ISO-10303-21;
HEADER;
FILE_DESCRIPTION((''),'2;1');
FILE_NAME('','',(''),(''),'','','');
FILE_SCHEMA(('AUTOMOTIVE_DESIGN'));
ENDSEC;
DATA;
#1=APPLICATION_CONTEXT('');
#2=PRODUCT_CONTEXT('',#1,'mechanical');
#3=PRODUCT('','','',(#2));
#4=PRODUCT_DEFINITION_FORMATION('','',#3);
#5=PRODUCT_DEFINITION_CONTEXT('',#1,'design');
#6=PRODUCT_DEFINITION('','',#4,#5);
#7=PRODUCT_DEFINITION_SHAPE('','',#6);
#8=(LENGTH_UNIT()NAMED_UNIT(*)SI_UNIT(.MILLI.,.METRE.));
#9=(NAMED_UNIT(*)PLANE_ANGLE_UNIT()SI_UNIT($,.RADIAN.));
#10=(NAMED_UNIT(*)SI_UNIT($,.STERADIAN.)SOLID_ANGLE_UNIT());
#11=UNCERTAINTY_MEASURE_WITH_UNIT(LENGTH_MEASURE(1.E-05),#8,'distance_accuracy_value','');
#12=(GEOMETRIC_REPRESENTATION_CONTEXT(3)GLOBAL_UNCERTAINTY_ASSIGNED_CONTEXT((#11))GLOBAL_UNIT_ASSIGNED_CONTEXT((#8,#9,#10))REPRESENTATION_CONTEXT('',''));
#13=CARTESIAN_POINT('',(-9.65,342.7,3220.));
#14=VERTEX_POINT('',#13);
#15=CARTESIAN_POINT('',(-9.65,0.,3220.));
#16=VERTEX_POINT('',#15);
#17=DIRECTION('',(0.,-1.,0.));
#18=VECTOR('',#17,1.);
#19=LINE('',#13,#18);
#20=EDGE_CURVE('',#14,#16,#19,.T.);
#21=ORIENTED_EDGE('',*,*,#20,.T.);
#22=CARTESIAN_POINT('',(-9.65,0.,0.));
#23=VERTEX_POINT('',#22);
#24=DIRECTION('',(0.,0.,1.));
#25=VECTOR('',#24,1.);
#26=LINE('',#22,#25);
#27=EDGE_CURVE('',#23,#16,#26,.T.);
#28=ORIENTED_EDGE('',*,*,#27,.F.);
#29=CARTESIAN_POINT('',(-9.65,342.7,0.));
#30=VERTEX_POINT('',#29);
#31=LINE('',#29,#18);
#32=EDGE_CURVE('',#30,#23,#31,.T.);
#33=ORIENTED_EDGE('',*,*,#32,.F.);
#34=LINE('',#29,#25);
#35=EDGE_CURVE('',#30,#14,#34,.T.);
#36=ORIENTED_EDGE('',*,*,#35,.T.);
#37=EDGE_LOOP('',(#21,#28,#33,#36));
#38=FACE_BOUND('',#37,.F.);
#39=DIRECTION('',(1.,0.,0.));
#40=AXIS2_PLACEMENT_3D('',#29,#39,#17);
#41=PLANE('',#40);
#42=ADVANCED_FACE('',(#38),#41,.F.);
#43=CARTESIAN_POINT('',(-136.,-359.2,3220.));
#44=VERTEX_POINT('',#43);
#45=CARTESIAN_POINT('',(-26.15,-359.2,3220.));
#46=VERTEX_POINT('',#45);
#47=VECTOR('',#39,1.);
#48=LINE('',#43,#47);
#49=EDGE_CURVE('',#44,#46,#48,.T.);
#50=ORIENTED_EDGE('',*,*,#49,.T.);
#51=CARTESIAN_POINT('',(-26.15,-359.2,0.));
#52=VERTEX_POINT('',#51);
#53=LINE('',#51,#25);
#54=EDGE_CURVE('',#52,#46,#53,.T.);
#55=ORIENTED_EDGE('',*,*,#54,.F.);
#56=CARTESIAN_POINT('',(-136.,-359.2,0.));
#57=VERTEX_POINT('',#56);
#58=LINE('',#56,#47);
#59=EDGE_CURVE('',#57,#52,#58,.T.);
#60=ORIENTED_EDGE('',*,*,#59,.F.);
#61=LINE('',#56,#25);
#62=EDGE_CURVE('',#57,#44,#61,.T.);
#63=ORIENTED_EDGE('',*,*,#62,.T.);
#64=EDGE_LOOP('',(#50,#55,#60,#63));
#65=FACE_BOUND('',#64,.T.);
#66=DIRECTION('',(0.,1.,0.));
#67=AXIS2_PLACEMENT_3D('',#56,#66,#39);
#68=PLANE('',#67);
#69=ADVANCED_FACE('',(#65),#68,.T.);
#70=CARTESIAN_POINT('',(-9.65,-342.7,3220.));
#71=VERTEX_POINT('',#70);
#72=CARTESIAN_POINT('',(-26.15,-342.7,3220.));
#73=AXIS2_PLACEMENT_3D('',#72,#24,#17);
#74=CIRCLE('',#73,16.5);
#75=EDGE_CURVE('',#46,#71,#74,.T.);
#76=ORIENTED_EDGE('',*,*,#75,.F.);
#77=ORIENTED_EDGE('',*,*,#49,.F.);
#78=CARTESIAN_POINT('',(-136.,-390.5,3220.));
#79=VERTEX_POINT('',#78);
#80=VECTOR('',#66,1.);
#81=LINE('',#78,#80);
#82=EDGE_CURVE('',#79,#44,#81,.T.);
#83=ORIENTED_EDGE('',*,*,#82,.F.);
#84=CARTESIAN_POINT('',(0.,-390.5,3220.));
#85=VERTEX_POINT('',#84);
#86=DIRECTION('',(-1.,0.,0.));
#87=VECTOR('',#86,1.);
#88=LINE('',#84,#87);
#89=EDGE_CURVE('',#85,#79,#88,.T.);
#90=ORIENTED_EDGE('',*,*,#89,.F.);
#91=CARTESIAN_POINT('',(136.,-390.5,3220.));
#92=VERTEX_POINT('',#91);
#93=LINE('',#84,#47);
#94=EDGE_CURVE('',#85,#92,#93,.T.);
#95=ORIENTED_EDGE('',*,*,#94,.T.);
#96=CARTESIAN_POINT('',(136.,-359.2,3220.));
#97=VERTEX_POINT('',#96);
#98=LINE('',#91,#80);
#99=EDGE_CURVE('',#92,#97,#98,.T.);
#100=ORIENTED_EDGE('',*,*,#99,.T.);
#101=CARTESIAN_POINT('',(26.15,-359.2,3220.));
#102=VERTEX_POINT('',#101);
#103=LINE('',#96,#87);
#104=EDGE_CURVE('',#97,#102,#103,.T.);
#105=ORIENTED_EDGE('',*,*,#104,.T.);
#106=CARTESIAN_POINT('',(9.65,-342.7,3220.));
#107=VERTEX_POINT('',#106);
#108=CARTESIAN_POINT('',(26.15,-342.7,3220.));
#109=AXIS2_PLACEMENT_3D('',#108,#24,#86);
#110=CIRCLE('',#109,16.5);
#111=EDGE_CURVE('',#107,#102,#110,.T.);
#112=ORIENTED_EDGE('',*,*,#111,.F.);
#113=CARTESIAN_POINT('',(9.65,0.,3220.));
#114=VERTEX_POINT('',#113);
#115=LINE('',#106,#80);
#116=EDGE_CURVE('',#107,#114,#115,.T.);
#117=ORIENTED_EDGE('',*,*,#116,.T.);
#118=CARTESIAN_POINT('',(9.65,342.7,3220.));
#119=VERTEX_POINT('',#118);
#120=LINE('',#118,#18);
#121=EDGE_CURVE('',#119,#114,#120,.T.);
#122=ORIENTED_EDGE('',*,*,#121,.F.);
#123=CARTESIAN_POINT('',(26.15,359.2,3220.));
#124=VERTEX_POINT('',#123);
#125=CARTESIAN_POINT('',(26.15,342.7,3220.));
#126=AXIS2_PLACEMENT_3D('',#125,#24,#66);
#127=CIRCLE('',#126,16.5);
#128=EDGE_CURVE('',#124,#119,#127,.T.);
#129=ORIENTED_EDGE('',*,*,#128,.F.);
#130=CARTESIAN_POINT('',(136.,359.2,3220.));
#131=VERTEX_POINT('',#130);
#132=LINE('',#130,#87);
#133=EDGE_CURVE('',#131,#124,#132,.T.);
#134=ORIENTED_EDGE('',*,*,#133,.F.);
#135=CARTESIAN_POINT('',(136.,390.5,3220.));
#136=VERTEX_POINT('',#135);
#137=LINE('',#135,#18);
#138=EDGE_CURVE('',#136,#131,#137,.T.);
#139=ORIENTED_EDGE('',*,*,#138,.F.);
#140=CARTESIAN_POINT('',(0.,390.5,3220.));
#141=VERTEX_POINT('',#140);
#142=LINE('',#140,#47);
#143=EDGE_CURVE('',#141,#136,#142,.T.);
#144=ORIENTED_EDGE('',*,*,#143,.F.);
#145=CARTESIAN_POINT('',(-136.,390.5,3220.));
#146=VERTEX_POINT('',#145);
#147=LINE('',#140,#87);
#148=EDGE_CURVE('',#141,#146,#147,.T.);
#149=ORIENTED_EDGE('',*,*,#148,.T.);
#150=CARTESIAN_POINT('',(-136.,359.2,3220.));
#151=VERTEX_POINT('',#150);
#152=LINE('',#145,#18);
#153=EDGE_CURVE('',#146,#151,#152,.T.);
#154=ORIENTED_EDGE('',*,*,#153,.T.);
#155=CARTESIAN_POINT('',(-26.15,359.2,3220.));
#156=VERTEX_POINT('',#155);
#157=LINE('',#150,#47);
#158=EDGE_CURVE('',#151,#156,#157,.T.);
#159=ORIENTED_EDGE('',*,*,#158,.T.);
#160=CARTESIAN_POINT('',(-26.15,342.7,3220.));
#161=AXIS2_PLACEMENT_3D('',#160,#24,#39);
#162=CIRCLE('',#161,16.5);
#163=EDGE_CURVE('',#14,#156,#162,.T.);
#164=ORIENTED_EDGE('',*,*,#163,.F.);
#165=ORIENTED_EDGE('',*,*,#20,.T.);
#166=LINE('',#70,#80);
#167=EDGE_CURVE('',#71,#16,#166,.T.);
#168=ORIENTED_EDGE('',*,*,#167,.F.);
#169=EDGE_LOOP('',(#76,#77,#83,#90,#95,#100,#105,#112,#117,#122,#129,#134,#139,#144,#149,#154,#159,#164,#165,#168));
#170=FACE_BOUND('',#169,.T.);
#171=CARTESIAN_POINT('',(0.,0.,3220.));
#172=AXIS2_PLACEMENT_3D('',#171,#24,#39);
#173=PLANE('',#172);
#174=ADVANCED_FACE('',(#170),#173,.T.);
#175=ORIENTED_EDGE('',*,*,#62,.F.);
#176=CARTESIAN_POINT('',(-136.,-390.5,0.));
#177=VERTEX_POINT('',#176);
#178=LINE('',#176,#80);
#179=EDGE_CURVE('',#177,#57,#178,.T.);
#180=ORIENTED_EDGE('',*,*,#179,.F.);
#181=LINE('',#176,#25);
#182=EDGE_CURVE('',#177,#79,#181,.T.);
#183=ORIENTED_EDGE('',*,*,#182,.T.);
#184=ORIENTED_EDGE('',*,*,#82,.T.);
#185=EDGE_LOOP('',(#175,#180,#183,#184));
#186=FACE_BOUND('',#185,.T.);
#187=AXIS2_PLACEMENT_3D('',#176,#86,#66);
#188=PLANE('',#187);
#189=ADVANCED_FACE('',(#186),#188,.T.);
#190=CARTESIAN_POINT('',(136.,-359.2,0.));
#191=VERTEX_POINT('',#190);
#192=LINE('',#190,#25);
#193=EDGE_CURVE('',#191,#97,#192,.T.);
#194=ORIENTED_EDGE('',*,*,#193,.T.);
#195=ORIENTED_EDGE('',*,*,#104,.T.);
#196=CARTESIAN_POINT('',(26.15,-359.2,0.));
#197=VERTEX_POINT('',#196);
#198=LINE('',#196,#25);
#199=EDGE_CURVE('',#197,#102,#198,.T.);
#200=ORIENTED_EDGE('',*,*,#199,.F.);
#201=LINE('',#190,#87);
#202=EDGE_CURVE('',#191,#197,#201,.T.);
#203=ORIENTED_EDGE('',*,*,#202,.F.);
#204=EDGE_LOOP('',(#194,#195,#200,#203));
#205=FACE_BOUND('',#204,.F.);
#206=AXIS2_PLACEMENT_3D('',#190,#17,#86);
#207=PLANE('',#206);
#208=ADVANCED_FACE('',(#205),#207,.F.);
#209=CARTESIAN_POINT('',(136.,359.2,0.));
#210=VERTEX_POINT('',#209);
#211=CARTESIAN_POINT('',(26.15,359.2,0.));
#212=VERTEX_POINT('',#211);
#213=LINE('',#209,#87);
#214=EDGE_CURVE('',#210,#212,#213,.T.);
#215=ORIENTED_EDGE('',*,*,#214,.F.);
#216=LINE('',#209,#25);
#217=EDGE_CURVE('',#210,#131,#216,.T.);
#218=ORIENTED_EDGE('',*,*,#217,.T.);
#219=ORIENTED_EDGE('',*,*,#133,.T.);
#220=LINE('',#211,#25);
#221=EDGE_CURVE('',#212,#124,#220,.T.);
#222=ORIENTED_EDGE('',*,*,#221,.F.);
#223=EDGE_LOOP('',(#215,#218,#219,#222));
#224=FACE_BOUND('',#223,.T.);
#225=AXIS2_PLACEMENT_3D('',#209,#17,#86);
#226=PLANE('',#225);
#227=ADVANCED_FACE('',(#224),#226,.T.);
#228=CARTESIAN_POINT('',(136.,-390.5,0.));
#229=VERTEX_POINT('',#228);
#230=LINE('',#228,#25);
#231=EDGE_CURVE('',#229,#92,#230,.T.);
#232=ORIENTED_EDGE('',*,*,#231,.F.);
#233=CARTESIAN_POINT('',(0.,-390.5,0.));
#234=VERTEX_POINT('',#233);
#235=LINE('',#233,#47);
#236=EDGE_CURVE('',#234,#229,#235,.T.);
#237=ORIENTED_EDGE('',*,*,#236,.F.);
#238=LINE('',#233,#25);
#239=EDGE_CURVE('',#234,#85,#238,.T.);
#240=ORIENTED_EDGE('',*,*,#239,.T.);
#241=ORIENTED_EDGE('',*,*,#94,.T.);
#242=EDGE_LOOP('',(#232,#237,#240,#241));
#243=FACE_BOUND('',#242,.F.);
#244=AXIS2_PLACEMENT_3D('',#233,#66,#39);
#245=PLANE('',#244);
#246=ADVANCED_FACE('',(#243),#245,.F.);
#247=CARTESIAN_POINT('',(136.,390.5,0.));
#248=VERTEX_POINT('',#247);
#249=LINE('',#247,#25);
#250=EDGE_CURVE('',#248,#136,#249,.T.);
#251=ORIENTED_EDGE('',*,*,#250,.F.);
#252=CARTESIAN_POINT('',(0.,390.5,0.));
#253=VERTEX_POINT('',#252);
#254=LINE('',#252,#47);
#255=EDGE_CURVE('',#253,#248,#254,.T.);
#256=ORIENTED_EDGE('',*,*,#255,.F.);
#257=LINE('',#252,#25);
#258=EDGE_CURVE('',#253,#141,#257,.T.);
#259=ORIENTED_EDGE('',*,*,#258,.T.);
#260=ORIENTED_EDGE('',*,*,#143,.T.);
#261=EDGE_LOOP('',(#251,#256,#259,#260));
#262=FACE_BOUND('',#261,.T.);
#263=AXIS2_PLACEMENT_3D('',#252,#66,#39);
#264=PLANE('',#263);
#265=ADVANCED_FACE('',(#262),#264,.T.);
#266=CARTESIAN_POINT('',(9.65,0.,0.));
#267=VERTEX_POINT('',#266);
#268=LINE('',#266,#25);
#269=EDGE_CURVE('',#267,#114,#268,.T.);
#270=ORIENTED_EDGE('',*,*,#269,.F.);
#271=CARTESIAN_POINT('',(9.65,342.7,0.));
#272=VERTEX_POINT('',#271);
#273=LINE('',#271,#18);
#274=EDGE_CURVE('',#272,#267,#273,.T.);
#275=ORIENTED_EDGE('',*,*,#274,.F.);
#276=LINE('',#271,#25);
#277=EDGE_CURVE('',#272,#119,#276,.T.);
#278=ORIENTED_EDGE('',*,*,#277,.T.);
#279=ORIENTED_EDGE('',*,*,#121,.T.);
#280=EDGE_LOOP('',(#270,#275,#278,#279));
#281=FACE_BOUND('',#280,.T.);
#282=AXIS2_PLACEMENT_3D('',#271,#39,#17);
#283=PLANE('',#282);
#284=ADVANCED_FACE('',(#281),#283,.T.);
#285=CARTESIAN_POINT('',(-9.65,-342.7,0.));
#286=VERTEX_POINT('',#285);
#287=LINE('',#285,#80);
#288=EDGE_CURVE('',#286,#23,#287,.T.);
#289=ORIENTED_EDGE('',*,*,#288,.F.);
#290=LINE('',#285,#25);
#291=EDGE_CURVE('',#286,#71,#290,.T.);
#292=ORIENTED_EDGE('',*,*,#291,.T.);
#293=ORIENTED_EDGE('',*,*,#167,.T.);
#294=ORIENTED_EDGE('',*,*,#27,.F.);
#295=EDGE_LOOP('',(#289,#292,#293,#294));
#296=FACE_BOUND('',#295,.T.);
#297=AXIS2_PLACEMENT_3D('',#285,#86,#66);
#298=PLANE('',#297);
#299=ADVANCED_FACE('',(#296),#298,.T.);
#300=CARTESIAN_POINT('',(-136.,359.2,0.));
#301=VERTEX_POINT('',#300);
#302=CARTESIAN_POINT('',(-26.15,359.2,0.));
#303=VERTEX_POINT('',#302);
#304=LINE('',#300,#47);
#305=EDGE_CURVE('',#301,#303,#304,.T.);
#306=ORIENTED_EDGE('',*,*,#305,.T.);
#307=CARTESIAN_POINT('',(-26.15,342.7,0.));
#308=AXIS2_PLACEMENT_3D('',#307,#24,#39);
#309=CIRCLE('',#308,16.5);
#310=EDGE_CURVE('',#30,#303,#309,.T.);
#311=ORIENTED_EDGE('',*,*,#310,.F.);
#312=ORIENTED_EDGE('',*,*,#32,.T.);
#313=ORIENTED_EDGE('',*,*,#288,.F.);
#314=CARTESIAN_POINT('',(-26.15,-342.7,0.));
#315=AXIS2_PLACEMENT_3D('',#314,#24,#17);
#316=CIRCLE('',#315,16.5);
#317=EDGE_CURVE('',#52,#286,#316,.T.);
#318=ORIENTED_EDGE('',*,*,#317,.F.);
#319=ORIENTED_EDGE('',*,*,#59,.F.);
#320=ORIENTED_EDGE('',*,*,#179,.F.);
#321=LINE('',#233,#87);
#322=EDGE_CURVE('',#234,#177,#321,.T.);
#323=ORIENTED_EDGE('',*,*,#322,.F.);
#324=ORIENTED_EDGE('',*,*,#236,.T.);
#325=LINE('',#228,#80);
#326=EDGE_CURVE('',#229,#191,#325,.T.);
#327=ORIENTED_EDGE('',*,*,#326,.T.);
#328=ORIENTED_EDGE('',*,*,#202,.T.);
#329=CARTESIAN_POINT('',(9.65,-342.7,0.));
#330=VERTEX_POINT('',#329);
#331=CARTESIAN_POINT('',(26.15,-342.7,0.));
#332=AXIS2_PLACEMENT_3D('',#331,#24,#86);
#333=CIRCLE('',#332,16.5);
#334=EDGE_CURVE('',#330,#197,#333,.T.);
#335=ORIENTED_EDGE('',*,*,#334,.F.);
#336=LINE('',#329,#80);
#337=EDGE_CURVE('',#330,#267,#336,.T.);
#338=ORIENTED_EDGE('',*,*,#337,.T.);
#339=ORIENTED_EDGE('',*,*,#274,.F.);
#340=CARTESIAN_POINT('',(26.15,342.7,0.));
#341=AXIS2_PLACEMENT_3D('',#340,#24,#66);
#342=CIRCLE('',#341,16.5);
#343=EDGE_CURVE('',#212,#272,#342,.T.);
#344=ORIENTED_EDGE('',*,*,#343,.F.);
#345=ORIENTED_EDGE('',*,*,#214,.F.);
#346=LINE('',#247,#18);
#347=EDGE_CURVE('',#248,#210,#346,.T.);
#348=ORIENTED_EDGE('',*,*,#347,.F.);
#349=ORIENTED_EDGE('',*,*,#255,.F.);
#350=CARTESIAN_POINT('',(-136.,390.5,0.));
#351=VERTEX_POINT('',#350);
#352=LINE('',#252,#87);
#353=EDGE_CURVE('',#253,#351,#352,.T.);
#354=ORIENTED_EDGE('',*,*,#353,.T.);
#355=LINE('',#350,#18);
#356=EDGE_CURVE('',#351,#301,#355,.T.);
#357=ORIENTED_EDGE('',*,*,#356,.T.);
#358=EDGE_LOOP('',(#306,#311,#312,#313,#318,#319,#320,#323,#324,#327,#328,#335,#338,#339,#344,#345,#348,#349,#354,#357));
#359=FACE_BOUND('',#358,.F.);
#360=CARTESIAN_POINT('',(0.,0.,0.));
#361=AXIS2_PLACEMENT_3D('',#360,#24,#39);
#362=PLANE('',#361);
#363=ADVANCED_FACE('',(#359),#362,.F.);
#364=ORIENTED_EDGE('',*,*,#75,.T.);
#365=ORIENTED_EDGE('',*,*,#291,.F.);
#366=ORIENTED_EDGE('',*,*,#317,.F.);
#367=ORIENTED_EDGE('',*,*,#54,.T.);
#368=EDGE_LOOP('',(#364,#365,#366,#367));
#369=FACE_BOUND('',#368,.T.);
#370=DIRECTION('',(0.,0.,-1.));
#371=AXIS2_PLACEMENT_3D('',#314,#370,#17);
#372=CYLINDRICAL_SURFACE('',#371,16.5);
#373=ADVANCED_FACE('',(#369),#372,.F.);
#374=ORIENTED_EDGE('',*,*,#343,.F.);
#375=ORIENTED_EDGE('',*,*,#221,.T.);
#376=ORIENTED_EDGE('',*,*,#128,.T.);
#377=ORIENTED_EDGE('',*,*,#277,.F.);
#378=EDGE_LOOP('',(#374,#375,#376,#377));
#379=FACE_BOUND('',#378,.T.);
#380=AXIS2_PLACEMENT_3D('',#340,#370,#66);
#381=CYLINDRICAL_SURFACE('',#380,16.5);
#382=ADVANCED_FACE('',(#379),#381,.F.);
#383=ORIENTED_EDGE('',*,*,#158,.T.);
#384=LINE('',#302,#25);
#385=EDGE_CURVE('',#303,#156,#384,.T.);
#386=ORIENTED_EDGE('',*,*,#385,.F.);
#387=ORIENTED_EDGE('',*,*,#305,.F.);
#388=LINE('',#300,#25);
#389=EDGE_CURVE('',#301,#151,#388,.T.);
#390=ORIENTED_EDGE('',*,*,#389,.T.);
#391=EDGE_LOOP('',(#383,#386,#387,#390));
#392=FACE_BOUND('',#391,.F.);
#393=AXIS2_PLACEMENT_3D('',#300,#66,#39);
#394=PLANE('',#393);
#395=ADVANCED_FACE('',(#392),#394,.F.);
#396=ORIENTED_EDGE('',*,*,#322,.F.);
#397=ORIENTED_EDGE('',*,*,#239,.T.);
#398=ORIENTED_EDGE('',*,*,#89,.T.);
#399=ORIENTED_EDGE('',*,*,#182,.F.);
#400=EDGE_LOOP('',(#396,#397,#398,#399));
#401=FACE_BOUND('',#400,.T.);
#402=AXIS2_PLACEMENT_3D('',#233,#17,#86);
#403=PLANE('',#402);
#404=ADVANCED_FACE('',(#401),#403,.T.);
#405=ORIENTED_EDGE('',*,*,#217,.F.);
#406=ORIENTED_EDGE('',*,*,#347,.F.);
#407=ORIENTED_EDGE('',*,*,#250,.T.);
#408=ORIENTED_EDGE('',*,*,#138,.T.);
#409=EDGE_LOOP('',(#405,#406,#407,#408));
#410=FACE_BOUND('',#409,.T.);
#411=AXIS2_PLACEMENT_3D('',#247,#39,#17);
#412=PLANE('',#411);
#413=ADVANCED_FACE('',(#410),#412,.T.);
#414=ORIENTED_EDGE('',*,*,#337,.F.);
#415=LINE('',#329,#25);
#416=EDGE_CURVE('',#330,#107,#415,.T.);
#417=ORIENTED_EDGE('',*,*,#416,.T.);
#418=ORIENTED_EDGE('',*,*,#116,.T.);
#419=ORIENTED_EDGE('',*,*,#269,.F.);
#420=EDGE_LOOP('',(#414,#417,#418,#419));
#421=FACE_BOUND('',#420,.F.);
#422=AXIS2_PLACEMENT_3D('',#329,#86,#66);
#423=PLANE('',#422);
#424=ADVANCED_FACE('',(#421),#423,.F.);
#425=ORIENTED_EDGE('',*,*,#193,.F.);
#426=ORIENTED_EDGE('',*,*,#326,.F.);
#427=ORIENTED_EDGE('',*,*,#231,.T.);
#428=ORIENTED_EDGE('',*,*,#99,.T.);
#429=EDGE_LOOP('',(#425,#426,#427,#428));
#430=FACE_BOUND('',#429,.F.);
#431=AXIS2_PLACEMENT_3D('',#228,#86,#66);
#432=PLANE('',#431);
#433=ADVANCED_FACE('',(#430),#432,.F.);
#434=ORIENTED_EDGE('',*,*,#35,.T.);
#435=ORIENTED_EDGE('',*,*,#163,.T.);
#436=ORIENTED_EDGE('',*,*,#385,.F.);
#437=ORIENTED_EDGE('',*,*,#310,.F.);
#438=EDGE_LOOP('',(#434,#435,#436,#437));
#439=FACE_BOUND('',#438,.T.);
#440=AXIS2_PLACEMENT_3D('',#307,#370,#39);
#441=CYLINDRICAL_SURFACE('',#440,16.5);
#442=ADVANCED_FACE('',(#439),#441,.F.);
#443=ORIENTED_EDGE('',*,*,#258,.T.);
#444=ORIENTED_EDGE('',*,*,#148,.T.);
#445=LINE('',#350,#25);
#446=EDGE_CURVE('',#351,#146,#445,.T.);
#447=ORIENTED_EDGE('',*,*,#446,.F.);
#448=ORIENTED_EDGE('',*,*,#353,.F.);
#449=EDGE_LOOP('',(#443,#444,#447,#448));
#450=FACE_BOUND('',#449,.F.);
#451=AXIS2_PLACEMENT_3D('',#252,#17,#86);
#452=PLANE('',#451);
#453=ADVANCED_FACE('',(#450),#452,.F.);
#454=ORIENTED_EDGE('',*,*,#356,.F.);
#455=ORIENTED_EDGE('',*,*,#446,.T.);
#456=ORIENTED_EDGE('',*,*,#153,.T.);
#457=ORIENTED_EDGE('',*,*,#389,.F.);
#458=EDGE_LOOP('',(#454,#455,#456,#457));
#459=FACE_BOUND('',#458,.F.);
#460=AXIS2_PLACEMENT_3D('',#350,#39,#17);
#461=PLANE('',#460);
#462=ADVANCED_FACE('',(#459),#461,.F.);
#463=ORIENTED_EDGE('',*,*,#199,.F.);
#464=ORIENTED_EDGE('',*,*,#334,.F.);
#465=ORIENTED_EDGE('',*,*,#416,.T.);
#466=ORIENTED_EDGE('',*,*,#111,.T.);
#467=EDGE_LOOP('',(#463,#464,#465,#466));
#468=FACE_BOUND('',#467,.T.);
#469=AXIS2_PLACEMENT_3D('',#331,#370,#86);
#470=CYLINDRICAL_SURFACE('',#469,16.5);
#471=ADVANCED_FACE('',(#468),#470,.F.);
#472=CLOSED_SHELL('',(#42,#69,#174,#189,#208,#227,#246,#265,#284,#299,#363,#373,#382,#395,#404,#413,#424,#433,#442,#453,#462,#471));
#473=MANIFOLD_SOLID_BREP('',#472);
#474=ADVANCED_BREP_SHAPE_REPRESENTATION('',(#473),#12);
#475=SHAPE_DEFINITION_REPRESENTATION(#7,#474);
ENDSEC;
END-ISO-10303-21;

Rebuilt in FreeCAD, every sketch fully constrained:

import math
import FreeCAD as App
import Part
import Sketcher

V = App.Vector

doc = App.newDocument("Part")
body = doc.addObject("PartDesign::Body", "Body")

sketch1 = doc.addObject("Sketcher::SketchObject", "Sketch")
body.addObject(sketch1)
sketch1.AttachmentSupport = (doc.XY_Plane, [""])
sketch1.MapMode = "FlatFace"
sketch1.addGeometry([
    Part.LineSegment(V(-136, -359, 0), V(-136, -390, 0)),
    Part.LineSegment(V(-136, -390, 0), V(136, -390, 0)),
    Part.LineSegment(V(136, -390, 0), V(136, -359, 0)),
    Part.LineSegment(V(136, -359, 0), V(26, -359, 0)),
    Part.ArcOfCircle(Part.Circle(V(26, -343, 0), V(0, 0, 1), 16), math.radians(180), math.radians(270)),
    Part.LineSegment(V(10, -343, 0), V(10, 343, 0)),
    Part.ArcOfCircle(Part.Circle(V(26, 343, 0), V(0, 0, 1), 16), math.radians(90), math.radians(180)),
    Part.LineSegment(V(26, 359, 0), V(136, 359, 0)),
    Part.LineSegment(V(136, 359, 0), V(136, 390, 0)),
    Part.LineSegment(V(136, 390, 0), V(-136, 390, 0)),
    Part.LineSegment(V(-136, 390, 0), V(-136, 359, 0)),
    Part.LineSegment(V(-136, 359, 0), V(-26, 359, 0)),
    Part.ArcOfCircle(Part.Circle(V(-26, 343, 0), V(0, 0, 1), 16), math.radians(0), math.radians(90)),
    Part.LineSegment(V(-10, 343, 0), V(-10, -343, 0)),
    Part.ArcOfCircle(Part.Circle(V(-26, -343, 0), V(0, 0, 1), 16), math.radians(-90), math.radians(0)),
    Part.LineSegment(V(-26, -359, 0), V(-136, -359, 0)),
], False)
sketch1.addConstraint([
    Sketcher.Constraint("Coincident", 0, 2, 1, 1),
    Sketcher.Constraint("Coincident", 1, 2, 2, 1),
    Sketcher.Constraint("Coincident", 2, 2, 3, 1),
    Sketcher.Constraint("Tangent", 3, 2, 4, 2),
    Sketcher.Constraint("Tangent", 4, 1, 5, 1),
    Sketcher.Constraint("Tangent", 5, 2, 6, 2),
    Sketcher.Constraint("Tangent", 6, 1, 7, 1),
    Sketcher.Constraint("Coincident", 7, 2, 8, 1),
    Sketcher.Constraint("Coincident", 8, 2, 9, 1),
    Sketcher.Constraint("Coincident", 9, 2, 10, 1),
    Sketcher.Constraint("Coincident", 10, 2, 11, 1),
    Sketcher.Constraint("Tangent", 11, 2, 12, 2),
    Sketcher.Constraint("Tangent", 12, 1, 13, 1),
    Sketcher.Constraint("Tangent", 13, 2, 14, 2),
    Sketcher.Constraint("Tangent", 14, 1, 15, 1),
    Sketcher.Constraint("Coincident", 15, 2, 0, 1),
    Sketcher.Constraint("Vertical", 0),
    Sketcher.Constraint("Horizontal", 1),
    Sketcher.Constraint("Vertical", 2),
    Sketcher.Constraint("Horizontal", 3),
    Sketcher.Constraint("Vertical", 5),
    Sketcher.Constraint("Horizontal", 7),
    Sketcher.Constraint("Vertical", 8),
    Sketcher.Constraint("Horizontal", 9),
    Sketcher.Constraint("Vertical", 10),
    Sketcher.Constraint("Horizontal", 11),
    Sketcher.Constraint("Vertical", 13),
    Sketcher.Constraint("Horizontal", 15),
    Sketcher.Constraint("Equal", 4, 6),
    Sketcher.Constraint("Equal", 6, 12),
    Sketcher.Constraint("Equal", 12, 14),
    Sketcher.Constraint("Symmetric", 4, 3, 12, 3, -1, 1),
    Sketcher.Constraint("Symmetric", 0, 2, 8, 2, -1, 1),
    Sketcher.Constraint("Symmetric", 7, 2, 10, 2, -2),
    Sketcher.Constraint("Symmetric", 2, 2, 15, 2, -2),
    Sketcher.Constraint("Radius", 4, 16.5),
    Sketcher.Constraint("DistanceY", 0, 2, 0, 1, 31.3),
    Sketcher.Constraint("DistanceX", 0, 2, -1, 1, 136.0),
    Sketcher.Constraint("DistanceY", 0, 2, -1, 1, 390.5),
    Sketcher.Constraint("DistanceX", -1, 1, 4, 1, 9.65),
])
pad1 = doc.addObject("PartDesign::Pad", "Pad")
body.addObject(pad1)
pad1.Profile = sketch1
pad1.Length = 3220

doc.recompute()
